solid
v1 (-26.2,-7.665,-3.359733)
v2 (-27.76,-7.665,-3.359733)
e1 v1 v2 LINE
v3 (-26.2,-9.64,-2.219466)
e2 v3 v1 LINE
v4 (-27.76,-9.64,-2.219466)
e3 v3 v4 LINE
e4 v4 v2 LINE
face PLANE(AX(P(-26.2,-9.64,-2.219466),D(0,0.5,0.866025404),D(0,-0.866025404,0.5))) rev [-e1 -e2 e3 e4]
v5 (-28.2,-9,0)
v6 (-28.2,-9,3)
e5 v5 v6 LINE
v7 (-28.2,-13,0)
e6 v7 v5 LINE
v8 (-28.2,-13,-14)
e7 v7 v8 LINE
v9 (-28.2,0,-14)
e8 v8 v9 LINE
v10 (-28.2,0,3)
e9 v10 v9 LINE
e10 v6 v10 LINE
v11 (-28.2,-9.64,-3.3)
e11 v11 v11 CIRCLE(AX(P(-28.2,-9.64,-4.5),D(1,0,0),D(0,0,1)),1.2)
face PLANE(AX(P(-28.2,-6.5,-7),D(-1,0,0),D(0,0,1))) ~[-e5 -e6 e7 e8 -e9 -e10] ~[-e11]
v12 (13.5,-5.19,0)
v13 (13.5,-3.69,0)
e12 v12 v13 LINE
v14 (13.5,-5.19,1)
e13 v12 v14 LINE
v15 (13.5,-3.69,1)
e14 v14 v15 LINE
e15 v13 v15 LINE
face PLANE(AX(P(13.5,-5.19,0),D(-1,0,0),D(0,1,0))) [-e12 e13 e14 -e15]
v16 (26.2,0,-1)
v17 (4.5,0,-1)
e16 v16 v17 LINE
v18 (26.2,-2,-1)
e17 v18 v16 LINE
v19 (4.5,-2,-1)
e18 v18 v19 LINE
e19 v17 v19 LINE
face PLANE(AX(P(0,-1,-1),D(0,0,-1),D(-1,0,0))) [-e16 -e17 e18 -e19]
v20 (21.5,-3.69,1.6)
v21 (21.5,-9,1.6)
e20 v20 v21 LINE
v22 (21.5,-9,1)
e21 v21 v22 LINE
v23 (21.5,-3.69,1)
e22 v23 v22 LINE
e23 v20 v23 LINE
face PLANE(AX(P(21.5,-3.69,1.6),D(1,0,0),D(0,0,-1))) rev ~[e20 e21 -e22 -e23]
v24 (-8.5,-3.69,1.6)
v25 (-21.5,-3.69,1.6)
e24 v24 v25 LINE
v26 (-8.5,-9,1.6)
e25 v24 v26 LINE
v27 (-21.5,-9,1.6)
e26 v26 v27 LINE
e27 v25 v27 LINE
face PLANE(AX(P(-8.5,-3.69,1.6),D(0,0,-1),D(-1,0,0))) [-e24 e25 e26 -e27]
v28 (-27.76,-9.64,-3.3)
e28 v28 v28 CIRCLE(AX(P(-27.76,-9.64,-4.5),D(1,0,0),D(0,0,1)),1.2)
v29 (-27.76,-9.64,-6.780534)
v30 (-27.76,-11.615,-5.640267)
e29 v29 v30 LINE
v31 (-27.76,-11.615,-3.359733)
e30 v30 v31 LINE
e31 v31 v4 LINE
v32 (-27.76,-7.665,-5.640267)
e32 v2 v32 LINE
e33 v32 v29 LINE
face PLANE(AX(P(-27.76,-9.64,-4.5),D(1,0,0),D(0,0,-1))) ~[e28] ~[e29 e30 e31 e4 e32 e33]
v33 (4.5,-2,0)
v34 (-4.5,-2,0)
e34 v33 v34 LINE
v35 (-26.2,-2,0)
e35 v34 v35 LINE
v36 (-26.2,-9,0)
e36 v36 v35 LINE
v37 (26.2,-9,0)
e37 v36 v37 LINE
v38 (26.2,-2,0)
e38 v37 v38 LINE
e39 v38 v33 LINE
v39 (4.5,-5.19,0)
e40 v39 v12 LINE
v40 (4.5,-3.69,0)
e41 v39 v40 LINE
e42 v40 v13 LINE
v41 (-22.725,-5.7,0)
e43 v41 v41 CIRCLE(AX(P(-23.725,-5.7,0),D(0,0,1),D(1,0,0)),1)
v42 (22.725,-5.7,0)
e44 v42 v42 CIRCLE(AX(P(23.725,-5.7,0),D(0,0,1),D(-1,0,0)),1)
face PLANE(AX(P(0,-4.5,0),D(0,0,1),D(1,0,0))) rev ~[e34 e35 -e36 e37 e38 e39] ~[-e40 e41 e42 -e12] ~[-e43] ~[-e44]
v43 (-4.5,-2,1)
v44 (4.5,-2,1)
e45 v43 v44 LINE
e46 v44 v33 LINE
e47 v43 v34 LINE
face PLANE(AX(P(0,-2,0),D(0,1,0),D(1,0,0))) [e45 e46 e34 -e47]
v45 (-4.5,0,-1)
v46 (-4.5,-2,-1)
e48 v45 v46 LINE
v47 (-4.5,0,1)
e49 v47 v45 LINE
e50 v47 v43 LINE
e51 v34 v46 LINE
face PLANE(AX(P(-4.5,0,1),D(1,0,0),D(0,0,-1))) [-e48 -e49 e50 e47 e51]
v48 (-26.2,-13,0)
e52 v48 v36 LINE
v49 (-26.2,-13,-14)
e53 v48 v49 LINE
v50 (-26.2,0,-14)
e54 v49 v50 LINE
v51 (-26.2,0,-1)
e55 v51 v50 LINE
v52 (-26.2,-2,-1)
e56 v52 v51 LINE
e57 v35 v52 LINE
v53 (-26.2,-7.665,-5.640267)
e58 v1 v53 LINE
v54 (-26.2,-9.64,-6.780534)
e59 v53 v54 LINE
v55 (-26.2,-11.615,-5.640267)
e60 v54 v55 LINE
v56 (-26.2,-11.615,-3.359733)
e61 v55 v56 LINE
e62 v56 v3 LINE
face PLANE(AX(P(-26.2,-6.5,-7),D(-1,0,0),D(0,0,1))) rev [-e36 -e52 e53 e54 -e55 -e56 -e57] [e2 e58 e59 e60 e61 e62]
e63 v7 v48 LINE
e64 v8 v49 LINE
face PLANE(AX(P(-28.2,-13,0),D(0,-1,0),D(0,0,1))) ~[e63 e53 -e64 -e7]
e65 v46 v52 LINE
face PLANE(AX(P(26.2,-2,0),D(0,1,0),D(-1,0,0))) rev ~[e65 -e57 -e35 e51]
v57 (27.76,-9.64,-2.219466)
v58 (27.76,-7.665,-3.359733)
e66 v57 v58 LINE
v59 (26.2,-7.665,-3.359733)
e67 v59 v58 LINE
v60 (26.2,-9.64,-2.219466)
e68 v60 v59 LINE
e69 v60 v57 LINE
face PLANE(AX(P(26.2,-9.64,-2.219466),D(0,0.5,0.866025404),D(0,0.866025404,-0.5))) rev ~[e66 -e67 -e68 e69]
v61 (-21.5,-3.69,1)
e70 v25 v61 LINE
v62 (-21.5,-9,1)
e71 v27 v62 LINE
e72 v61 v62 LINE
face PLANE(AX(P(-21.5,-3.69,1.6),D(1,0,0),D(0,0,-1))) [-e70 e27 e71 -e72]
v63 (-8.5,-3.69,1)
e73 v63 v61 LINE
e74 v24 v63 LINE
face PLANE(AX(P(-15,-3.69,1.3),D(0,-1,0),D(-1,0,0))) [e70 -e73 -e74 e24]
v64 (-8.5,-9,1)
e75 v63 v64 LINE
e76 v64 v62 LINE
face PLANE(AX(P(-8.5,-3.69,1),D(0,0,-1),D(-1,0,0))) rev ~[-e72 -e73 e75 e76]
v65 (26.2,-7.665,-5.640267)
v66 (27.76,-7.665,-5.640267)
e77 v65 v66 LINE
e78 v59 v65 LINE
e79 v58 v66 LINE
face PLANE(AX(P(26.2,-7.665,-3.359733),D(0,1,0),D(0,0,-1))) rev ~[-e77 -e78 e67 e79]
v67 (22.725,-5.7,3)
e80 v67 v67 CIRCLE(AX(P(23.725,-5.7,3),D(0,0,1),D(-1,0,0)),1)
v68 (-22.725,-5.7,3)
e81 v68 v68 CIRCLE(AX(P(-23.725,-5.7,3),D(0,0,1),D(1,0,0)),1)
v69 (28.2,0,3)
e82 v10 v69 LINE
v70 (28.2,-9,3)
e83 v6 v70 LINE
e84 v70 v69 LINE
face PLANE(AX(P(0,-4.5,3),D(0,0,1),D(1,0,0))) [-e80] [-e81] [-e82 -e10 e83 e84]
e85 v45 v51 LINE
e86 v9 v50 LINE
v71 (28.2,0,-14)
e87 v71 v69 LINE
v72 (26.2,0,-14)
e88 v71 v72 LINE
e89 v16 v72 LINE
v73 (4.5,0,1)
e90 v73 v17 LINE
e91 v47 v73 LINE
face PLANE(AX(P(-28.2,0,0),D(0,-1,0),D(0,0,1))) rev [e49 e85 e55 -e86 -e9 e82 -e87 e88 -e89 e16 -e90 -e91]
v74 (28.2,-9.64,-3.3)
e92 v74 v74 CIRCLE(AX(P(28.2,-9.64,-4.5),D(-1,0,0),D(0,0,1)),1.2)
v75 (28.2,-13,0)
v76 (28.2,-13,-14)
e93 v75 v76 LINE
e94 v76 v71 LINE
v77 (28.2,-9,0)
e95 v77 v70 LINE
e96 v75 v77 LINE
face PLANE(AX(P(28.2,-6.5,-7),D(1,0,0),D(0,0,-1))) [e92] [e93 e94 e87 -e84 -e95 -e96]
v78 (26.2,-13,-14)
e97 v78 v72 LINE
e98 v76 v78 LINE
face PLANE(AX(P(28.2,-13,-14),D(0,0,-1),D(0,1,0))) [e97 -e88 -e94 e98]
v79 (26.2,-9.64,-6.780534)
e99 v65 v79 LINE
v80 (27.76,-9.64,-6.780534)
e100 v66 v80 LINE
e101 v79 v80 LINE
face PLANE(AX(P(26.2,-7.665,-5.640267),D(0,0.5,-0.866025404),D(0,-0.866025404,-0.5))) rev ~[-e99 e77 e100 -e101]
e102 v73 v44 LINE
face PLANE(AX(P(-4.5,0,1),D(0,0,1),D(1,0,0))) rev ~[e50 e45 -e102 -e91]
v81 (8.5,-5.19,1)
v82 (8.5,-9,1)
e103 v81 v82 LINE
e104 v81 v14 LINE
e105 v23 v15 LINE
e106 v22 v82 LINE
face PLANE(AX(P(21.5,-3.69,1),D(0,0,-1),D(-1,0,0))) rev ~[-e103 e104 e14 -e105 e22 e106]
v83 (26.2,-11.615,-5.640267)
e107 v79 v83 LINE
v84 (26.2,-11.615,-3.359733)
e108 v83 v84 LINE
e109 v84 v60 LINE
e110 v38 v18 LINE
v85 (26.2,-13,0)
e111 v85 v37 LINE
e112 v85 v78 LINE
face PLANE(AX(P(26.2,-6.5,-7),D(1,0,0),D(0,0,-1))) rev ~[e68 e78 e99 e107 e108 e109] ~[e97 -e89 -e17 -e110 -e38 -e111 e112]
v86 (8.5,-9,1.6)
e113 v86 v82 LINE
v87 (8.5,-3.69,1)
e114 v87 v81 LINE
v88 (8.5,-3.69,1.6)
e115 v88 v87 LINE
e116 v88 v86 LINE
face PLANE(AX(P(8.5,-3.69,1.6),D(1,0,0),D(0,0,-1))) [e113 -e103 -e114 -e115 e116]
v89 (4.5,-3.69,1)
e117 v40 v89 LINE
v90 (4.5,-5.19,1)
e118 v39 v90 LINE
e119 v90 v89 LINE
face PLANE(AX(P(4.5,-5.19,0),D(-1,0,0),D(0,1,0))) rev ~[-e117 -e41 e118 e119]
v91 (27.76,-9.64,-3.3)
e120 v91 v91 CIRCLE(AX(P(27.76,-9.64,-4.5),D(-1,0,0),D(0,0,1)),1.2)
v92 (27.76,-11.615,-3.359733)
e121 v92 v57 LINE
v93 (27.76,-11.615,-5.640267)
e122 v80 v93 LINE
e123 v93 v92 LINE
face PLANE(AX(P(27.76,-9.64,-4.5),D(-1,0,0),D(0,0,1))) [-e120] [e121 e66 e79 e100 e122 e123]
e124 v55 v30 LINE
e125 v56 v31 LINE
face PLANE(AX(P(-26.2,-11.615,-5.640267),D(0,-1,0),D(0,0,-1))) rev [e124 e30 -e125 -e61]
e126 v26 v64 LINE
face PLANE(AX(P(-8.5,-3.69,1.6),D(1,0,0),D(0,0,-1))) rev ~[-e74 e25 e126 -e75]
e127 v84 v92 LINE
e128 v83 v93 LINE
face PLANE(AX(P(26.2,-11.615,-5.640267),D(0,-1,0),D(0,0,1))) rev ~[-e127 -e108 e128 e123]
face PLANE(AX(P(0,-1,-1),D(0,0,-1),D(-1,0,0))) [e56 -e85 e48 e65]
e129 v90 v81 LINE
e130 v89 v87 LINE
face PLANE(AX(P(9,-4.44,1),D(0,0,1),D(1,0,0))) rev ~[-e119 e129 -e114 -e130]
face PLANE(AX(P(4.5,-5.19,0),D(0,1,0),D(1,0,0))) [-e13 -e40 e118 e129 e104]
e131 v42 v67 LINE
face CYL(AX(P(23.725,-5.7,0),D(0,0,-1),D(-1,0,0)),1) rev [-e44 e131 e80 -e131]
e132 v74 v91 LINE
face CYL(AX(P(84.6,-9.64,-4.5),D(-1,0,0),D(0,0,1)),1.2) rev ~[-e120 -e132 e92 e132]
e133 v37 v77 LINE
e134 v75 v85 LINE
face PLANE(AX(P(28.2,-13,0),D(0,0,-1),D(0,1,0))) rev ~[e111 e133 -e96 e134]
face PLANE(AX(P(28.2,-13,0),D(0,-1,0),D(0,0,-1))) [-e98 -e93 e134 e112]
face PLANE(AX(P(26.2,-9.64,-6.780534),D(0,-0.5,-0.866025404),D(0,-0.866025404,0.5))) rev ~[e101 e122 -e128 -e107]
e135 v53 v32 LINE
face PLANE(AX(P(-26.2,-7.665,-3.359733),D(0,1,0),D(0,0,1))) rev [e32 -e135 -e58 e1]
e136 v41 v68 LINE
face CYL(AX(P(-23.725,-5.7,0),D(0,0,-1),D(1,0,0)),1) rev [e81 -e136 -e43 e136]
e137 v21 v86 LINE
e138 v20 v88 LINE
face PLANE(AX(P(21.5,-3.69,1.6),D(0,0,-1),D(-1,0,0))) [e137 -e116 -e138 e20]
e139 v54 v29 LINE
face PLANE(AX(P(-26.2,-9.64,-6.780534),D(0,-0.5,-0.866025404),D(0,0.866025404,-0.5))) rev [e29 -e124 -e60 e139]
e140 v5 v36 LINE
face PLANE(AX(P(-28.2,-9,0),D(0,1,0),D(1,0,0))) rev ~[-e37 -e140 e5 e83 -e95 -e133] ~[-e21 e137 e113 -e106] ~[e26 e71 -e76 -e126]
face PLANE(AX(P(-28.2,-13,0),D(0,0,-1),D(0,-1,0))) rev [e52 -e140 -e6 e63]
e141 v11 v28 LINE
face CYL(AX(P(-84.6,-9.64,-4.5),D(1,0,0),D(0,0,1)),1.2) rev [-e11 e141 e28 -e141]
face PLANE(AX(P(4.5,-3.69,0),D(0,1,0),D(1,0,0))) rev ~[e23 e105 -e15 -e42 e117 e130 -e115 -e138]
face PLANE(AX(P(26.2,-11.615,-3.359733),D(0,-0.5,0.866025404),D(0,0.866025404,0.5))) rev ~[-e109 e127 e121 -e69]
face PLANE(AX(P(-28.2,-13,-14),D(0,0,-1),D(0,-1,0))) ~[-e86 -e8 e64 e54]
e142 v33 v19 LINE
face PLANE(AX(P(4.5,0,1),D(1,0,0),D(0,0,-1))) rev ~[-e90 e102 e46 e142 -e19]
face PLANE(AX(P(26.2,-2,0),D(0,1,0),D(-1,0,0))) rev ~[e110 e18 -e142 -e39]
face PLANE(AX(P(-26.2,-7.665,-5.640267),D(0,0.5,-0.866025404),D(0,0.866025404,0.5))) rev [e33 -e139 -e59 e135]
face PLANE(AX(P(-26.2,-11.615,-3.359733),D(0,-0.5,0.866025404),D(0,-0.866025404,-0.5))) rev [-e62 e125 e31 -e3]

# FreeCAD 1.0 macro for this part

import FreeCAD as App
import Part
import Sketcher

V = App.Vector
Q = App.Units.Quantity


def add_polygon(sketch, points):
    """Adds a closed chain of lines whose ends are joined by coincident constraints."""
    first, n = sketch.GeometryCount, len(points)
    for a, b in zip(points, points[1:] + points[:1]):
        sketch.addGeometry(Part.LineSegment(App.Vector(*a, 0), App.Vector(*b, 0)), False)
    for i in range(n):
        sketch.addConstraint(Sketcher.Constraint("Coincident", first + i, 2, first + (i + 1) % n, 1))

doc = App.newDocument("Part")
body = doc.addObject("PartDesign::Body", "Body")

sketch1 = doc.addObject("Sketcher::SketchObject", "Sketch")
body.addObject(sketch1)
sketch1.AttachmentSupport = (doc.XY_Plane, [""])
sketch1.MapMode = "FlatFace"
add_polygon(sketch1, [(-28.2, 0), (-28.2, -9), (28.2, -9), (28.2, 0)])
sketch1.addGeometry(Part.Circle(V(-23.7, -5.7, 0), V(0, 0, 1), 1), False)
sketch1.addGeometry(Part.Circle(V(23.7, -5.7, 0), V(0, 0, 1), 1), False)
sketch1.addConstraint(Sketcher.Constraint("Vertical", 0))
sketch1.addConstraint(Sketcher.Constraint("Horizontal", 1))
sketch1.addConstraint(Sketcher.Constraint("Vertical", 2))
sketch1.addConstraint(Sketcher.Constraint("Horizontal", 3))
sketch1.addConstraint(Sketcher.Constraint("Equal", 4, 5))
sketch1.addConstraint(Sketcher.Constraint("Symmetric", 2, 2, 3, 2, -1, 1))
sketch1.addConstraint(Sketcher.Constraint("Symmetric", 4, 3, 5, 3, -2))
sketch1.addConstraint(Sketcher.Constraint("Diameter", 4, Q("2 mm")))
sketch1.addConstraint(Sketcher.Constraint("DistanceY", 0, 2, 0, 1, Q("9 mm")))
sketch1.addConstraint(Sketcher.Constraint("DistanceX", 1, 1, 1, 2, Q("56.4 mm")))
sketch1.addConstraint(Sketcher.Constraint("DistanceY", 4, 3, -1, 1, Q("5.7 mm")))
sketch1.addConstraint(Sketcher.Constraint("DistanceX", 4, 3, 5, 3, Q("47.45 mm")))
pad1 = doc.addObject("PartDesign::Pad", "Pad")
body.addObject(pad1)
pad1.Profile = sketch1
pad1.Length = 3

sketch2 = doc.addObject("Sketcher::SketchObject", "Sketch001")
body.addObject(sketch2)
sketch2.AttachmentSupport = (doc.YZ_Plane, [""])
sketch2.MapMode = "FlatFace"
sketch2.AttachmentOffset = App.Placement(V(0, 0, 28.2), App.Rotation())
add_polygon(sketch2, [(0, 0), (-13, 0), (-13, -14), (0, -14)])
sketch2.addConstraint(Sketcher.Constraint("Horizontal", 0))
sketch2.addConstraint(Sketcher.Constraint("Vertical", 1))
sketch2.addConstraint(Sketcher.Constraint("Horizontal", 2))
sketch2.addConstraint(Sketcher.Constraint("Vertical", 3))
sketch2.addConstraint(Sketcher.Constraint("Coincident", 3, 2, -1, 1))
sketch2.addConstraint(Sketcher.Constraint("DistanceX", 0, 2, 0, 1, Q("13 mm")))
sketch2.addConstraint(Sketcher.Constraint("DistanceY", 1, 2, 1, 1, Q("14 mm")))
pad2 = doc.addObject("PartDesign::Pad", "Pad001")
body.addObject(pad2)
pad2.Profile = sketch2
pad2.Length = 2
pad2.Reversed = True

sketch3 = doc.addObject("Sketcher::SketchObject", "Sketch002")
body.addObject(sketch3)
sketch3.AttachmentSupport = (doc.YZ_Plane, [""])
sketch3.MapMode = "FlatFace"
sketch3.AttachmentOffset = App.Placement(V(0, 0, 28.2), App.Rotation())
sketch3.addGeometry(Part.Circle(V(-9.6, -4.5, 0), V(0, 0, 1), 1.2), False)
sketch3.addConstraint(Sketcher.Constraint("Diameter", 0, Q("2.4 mm")))
sketch3.addConstraint(Sketcher.Constraint("DistanceY", 0, 3, -1, 1, Q("4.5 mm")))
sketch3.addConstraint(Sketcher.Constraint("DistanceX", 0, 3, -1, 1, Q("9.64 mm")))
doc.recompute()
hole = doc.addObject("PartDesign::Hole", "Hole")
body.addObject(hole)
hole.Profile = sketch3
hole.ThreadType = "None"
hole.Diameter = 2.4
hole.DepthType = "Dimension"
hole.Depth = 56.4
hole.DrillPoint = "Flat"

sketch4 = doc.addObject("Sketcher::SketchObject", "Sketch003")
body.addObject(sketch4)
sketch4.AttachmentSupport = (doc.YZ_Plane, [""])
sketch4.MapMode = "FlatFace"
sketch4.AttachmentOffset = App.Placement(V(0, 0, 26.2), App.Rotation())
add_polygon(sketch4, [(-7.7, -3.4), (-7.7, -5.6), (-9.6, -6.8), (-11.6, -5.6), (-11.6, -3.4), (-9.6, -2.2)])
sketch4.addConstraint(Sketcher.Constraint("Vertical", 0))
sketch4.addConstraint(Sketcher.Constraint("Vertical", 3))
sketch4.addConstraint(Sketcher.Constraint("Parallel", 1, 4))
sketch4.addConstraint(Sketcher.Constraint("Parallel", 2, 5))
sketch4.addConstraint(Sketcher.Constraint("Horizontal", 0, 2, 2, 2))
sketch4.addConstraint(Sketcher.Constraint("Horizontal", 3, 2, 5, 2))
sketch4.addConstraint(Sketcher.Constraint("Vertical", 1, 2, 4, 2))
sketch4.addConstraint(Sketcher.Constraint("Angle", 1, Q("-150 deg")))
sketch4.addConstraint(Sketcher.Constraint("DistanceX", 1, 2, -1, 1, Q("9.64 mm")))
sketch4.addConstraint(Sketcher.Constraint("DistanceX", 2, 2, 0, 2, Q("3.95 mm")))
sketch4.addConstraint(Sketcher.Constraint("DistanceY", 1, 2, 3, 2, Q("3.4208 mm")))
sketch4.addConstraint(Sketcher.Constraint("DistanceY", 0, 2, -1, 1, Q("5.640267 mm")))
pocket1 = doc.addObject("PartDesign::Pocket", "Pocket")
body.addObject(pocket1)
pocket1.Profile = sketch4
pocket1.Length = 1.56
pocket1.Reversed = True
doc.recompute()

mirrored = doc.addObject("PartDesign::Mirrored", "Mirrored")
body.addObject(mirrored)
mirrored.Originals = [pad2, hole, pocket1]
mirrored.MirrorPlane = (doc.YZ_Plane, [""])
body.Tip = mirrored

sketch5 = doc.addObject("Sketcher::SketchObject", "Sketch004")
body.addObject(sketch5)
sketch5.AttachmentSupport = (doc.XY_Plane, [""])
sketch5.MapMode = "FlatFace"
add_polygon(sketch5, [(4.5, -3.7), (4.5, -5.2), (13.5, -5.2), (13.5, -3.7)])
sketch5.addConstraint(Sketcher.Constraint("Vertical", 0))
sketch5.addConstraint(Sketcher.Constraint("Horizontal", 1))
sketch5.addConstraint(Sketcher.Constraint("Vertical", 2))
sketch5.addConstraint(Sketcher.Constraint("Horizontal", 3))
sketch5.addConstraint(Sketcher.Constraint("DistanceX", 1, 1, 1, 2, Q("9 mm")))
sketch5.addConstraint(Sketcher.Constraint("DistanceY", 0, 2, 0, 1, Q("1.5 mm")))
sketch5.addConstraint(Sketcher.Constraint("DistanceX", -1, 1, 0, 2, Q("4.5 mm")))
sketch5.addConstraint(Sketcher.Constraint("DistanceY", 0, 2, -1, 1, Q("5.19 mm")))
pocket2 = doc.addObject("PartDesign::Pocket", "Pocket001")
body.addObject(pocket2)
pocket2.Profile = sketch5
pocket2.Length = 1
pocket2.Reversed = True

sketch6 = doc.addObject("Sketcher::SketchObject", "Sketch005")
body.addObject(sketch6)
sketch6.AttachmentSupport = (doc.XY_Plane, [""])
sketch6.MapMode = "FlatFace"
add_polygon(sketch6, [(26.2, 0), (26.2, -2), (-26.2, -2), (-26.2, 0)])
sketch6.addConstraint(Sketcher.Constraint("Vertical", 0))
sketch6.addConstraint(Sketcher.Constraint("Horizontal", 1))
sketch6.addConstraint(Sketcher.Constraint("Vertical", 2))
sketch6.addConstraint(Sketcher.Constraint("Horizontal", 3))
sketch6.addConstraint(Sketcher.Constraint("Symmetric", 2, 2, 3, 2, -1, 1))
sketch6.addConstraint(Sketcher.Constraint("DistanceY", 0, 2, 0, 1, Q("2 mm")))
sketch6.addConstraint(Sketcher.Constraint("DistanceX", 1, 2, 1, 1, Q("52.4 mm")))
pad3 = doc.addObject("PartDesign::Pad", "Pad002")
body.addObject(pad3)
pad3.Profile = sketch6
pad3.Length = 1
pad3.Reversed = True

sketch7 = doc.addObject("Sketcher::SketchObject", "Sketch006")
body.addObject(sketch7)
sketch7.AttachmentSupport = (doc.XZ_Plane, [""])
sketch7.MapMode = "FlatFace"
add_polygon(sketch7, [(-4.5, -1), (-4.5, 1), (4.5, 1), (4.5, -1)])
sketch7.addConstraint(Sketcher.Constraint("Vertical", 0))
sketch7.addConstraint(Sketcher.Constraint("Horizontal", 1))
sketch7.addConstraint(Sketcher.Constraint("Vertical", 2))
sketch7.addConstraint(Sketcher.Constraint("Horizontal", 3))
sketch7.addConstraint(Sketcher.Constraint("Symmetric", 0, 2, 2, 2, -1, 1))
sketch7.addConstraint(Sketcher.Constraint("DistanceX", 1, 1, 1, 2, Q("9 mm")))
sketch7.addConstraint(Sketcher.Constraint("DistanceY", 0, 1, 0, 2, Q("2 mm")))
pocket3 = doc.addObject("PartDesign::Pocket", "Pocket002")
body.addObject(pocket3)
pocket3.Profile = sketch7
pocket3.Length = 2
pocket3.Reversed = True

sketch8 = doc.addObject("Sketcher::SketchObject", "Sketch007")
body.addObject(sketch8)
sketch8.AttachmentSupport = (doc.XZ_Plane, [""])
sketch8.MapMode = "FlatFace"
sketch8.AttachmentOffset = App.Placement(V(0, 0, 3.69), App.Rotation())
add_polygon(sketch8, [(-8.5, 1), (-8.5, 1.6), (-21.5, 1.6), (-21.5, 1)])
add_polygon(sketch8, [(21.5, 1), (21.5, 1.6), (8.5, 1.6), (8.5, 1)])
sketch8.addConstraint(Sketcher.Constraint("Vertical", 0))
sketch8.addConstraint(Sketcher.Constraint("Horizontal", 1))
sketch8.addConstraint(Sketcher.Constraint("Vertical", 2))
sketch8.addConstraint(Sketcher.Constraint("Horizontal", 3))
sketch8.addConstraint(Sketcher.Constraint("Vertical", 4))
sketch8.addConstraint(Sketcher.Constraint("Horizontal", 5))
sketch8.addConstraint(Sketcher.Constraint("Vertical", 6))
sketch8.addConstraint(Sketcher.Constraint("Horizontal", 7))
sketch8.addConstraint(Sketcher.Constraint("Symmetric", 1, 2, 4, 2, -2))
sketch8.addConstraint(Sketcher.Constraint("Symmetric", 3, 2, 6, 2, -2))
sketch8.addConstraint(Sketcher.Constraint("DistanceX", 1, 2, 1, 1, Q("13 mm")))
sketch8.addConstraint(Sketcher.Constraint("DistanceY", 0, 1, 0, 2, Q("0.6 mm")))
sketch8.addConstraint(Sketcher.Constraint("DistanceY", -1, 1, 2, 2, Q("1 mm")))
sketch8.addConstraint(Sketcher.Constraint("DistanceX", 0, 2, 4, 2, Q("30 mm")))
pocket4 = doc.addObject("PartDesign::Pocket", "Pocket003")
body.addObject(pocket4)
pocket4.Profile = sketch8
pocket4.Type = "ThroughAll"
pocket4.Reversed = True

doc.recompute()
